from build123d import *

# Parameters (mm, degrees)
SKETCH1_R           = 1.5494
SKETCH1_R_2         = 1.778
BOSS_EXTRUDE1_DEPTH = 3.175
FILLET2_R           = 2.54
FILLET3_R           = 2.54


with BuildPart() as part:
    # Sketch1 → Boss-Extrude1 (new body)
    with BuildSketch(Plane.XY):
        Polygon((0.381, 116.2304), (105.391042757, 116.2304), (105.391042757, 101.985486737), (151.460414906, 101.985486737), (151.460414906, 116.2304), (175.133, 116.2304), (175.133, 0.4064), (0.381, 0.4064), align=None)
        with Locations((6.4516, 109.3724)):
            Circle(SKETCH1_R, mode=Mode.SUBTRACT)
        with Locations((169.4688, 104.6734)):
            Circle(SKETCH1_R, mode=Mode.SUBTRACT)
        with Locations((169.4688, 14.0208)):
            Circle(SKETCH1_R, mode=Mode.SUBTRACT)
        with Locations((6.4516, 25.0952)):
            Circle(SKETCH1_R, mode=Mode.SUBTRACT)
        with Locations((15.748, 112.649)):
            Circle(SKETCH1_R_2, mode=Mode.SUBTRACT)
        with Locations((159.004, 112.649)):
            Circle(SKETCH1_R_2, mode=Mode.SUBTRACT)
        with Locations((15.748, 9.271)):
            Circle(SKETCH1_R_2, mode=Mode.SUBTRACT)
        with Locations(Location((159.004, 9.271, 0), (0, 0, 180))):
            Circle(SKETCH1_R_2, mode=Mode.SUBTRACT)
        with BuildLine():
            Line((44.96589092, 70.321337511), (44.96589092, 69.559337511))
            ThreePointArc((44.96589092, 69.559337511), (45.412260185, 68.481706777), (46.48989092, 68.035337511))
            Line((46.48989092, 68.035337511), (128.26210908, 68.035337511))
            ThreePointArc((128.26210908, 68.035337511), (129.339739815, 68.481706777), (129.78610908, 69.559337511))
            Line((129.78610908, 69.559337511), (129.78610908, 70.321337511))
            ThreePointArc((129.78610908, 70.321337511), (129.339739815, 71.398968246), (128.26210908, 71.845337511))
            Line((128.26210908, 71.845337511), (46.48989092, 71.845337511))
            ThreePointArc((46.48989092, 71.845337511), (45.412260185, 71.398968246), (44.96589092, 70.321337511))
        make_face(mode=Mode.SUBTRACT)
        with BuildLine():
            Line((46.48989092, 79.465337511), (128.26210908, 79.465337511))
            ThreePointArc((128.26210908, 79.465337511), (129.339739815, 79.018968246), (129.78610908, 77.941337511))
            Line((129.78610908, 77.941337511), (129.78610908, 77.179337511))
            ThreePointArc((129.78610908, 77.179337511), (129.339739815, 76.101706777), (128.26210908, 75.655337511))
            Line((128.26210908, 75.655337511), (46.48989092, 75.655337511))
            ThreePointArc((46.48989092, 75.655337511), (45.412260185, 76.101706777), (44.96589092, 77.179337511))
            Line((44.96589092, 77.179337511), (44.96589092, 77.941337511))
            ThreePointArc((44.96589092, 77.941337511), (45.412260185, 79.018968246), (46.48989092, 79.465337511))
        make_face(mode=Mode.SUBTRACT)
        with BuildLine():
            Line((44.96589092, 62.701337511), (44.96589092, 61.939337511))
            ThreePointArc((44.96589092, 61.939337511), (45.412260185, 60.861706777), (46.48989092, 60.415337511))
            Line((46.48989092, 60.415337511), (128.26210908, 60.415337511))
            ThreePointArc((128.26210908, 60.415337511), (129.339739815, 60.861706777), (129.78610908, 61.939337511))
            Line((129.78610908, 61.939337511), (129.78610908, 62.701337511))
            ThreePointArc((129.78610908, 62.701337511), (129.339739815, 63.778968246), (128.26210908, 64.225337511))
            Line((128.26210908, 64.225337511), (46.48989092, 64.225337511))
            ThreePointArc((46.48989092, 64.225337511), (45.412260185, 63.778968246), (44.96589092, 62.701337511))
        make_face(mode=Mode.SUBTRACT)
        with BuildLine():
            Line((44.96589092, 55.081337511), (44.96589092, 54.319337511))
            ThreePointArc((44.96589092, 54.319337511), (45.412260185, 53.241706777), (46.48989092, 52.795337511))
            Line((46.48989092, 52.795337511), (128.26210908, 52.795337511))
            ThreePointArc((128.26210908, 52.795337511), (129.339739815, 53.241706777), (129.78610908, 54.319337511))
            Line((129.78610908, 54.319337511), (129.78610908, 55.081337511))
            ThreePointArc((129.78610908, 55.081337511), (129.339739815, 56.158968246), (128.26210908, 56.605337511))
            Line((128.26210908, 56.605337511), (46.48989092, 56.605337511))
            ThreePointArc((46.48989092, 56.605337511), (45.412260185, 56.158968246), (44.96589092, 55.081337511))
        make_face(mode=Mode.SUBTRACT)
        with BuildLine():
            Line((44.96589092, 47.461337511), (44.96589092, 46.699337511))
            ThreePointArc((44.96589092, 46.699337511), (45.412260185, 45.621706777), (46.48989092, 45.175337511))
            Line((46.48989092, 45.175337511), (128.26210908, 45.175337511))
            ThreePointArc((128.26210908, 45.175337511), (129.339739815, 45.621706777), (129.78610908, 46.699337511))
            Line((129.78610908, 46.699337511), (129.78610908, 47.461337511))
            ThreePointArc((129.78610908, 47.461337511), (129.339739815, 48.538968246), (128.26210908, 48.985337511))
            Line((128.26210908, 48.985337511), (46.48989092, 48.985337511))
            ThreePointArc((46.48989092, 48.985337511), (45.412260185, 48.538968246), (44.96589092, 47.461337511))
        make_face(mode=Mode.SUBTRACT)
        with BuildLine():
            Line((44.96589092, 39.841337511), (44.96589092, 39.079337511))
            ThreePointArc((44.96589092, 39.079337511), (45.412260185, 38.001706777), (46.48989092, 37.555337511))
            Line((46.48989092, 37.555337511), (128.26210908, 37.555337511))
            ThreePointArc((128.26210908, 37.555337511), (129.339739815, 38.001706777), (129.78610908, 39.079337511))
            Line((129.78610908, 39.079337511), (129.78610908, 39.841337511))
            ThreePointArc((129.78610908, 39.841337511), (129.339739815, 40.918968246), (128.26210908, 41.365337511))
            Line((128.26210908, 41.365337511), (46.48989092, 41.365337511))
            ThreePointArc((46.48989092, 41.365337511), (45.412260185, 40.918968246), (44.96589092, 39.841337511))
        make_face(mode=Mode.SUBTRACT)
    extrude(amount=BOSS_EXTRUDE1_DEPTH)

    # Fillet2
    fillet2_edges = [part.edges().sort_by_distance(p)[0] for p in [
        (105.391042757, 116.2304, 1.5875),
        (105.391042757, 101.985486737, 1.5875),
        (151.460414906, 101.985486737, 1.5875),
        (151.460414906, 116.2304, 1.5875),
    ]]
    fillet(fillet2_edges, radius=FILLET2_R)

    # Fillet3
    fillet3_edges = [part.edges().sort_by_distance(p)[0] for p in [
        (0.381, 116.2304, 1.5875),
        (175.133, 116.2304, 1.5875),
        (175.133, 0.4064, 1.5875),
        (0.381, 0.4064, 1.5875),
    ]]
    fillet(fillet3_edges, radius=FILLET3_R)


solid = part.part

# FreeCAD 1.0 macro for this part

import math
import FreeCAD as App
import Part
import Sketcher
from FreeCAD import Vector
Q = App.Units.Quantity


def edges_at(feature, points):
    """Names of the edges that pass closest to the given points."""
    edges = feature.Shape.Edges
    near = lambda p: min(range(len(edges)), key=lambda i: edges[i].distToShape(Part.Vertex(*p))[0])
    return sorted({f"Edge{near(p) + 1}" for p in points})

doc = App.newDocument("Part")
body = doc.addObject("PartDesign::Body", "Body")

sketch1 = body.newObject("Sketcher::SketchObject", "Sketch")
sketch1.AttachmentSupport = (doc.getObject("XY_Plane"), [""])
sketch1.MapMode = "FlatFace"
sketch1.addGeometry([
    Part.LineSegment(Vector(105.391043, 116.2304, 0), Vector(0.381, 116.2304, 0)),
    Part.LineSegment(Vector(0.381, 116.2304, 0), Vector(0.381, 0.4064, 0)),
    Part.LineSegment(Vector(0.381, 0.4064, 0), Vector(175.133, 0.4064, 0)),
    Part.LineSegment(Vector(175.133, 0.4064, 0), Vector(175.133, 116.2304, 0)),
    Part.LineSegment(Vector(175.133, 116.2304, 0), Vector(151.460415, 116.2304, 0)),
    Part.LineSegment(Vector(151.460415, 116.2304, 0), Vector(151.460415, 101.985487, 0)),
    Part.LineSegment(Vector(151.460415, 101.985487, 0), Vector(105.391043, 101.985487, 0)),
    Part.LineSegment(Vector(105.391043, 101.985487, 0), Vector(105.391043, 116.2304, 0)),
    Part.Circle(Vector(169.4688, 14.0208, 0), Vector(0, 0, 1), 1.5494),
    Part.Circle(Vector(159.004, 9.271, 0), Vector(0, 0, 1), 1.778),
    Part.Circle(Vector(15.748, 9.271, 0), Vector(0, 0, 1), 1.778),
    Part.Circle(Vector(6.4516, 25.0952, 0), Vector(0, 0, 1), 1.5494),
    Part.ArcOfCircle(Part.Circle(Vector(46.489891, 39.841338, 0), Vector(0, 0, 1), 1.524), math.radians(90), math.radians(180)),
    Part.LineSegment(Vector(46.489891, 41.365338, 0), Vector(128.262109, 41.365338, 0)),
    Part.ArcOfCircle(Part.Circle(Vector(128.262109, 39.841338, 0), Vector(0, 0, 1), 1.524), math.radians(0), math.radians(90)),
    Part.LineSegment(Vector(129.786109, 39.841338, 0), Vector(129.786109, 39.079338, 0)),
    Part.ArcOfCircle(Part.Circle(Vector(128.262109, 39.079338, 0), Vector(0, 0, 1), 1.524), math.radians(-90), math.radians(0)),
    Part.LineSegment(Vector(128.262109, 37.555338, 0), Vector(46.489891, 37.555338, 0)),
    Part.ArcOfCircle(Part.Circle(Vector(46.489891, 39.079338, 0), Vector(0, 0, 1), 1.524), math.radians(180), math.radians(270)),
    Part.LineSegment(Vector(44.965891, 39.079338, 0), Vector(44.965891, 39.841338, 0)),
    Part.ArcOfCircle(Part.Circle(Vector(46.489891, 47.461338, 0), Vector(0, 0, 1), 1.524), math.radians(90), math.radians(180)),
    Part.LineSegment(Vector(46.489891, 48.985338, 0), Vector(128.262109, 48.985338, 0)),
    Part.ArcOfCircle(Part.Circle(Vector(128.262109, 47.461338, 0), Vector(0, 0, 1), 1.524), math.radians(0), math.radians(90)),
    Part.LineSegment(Vector(129.786109, 47.461338, 0), Vector(129.786109, 46.699338, 0)),
    Part.ArcOfCircle(Part.Circle(Vector(128.262109, 46.699338, 0), Vector(0, 0, 1), 1.524), math.radians(-90), math.radians(0)),
    Part.LineSegment(Vector(128.262109, 45.175338, 0), Vector(46.489891, 45.175338, 0)),
    Part.ArcOfCircle(Part.Circle(Vector(46.489891, 46.699338, 0), Vector(0, 0, 1), 1.524), math.radians(180), math.radians(270)),
    Part.LineSegment(Vector(44.965891, 46.699338, 0), Vector(44.965891, 47.461338, 0)),
    Part.ArcOfCircle(Part.Circle(Vector(46.489891, 55.081338, 0), Vector(0, 0, 1), 1.524), math.radians(90), math.radians(180)),
    Part.LineSegment(Vector(46.489891, 56.605338, 0), Vector(128.262109, 56.605338, 0)),
    Part.ArcOfCircle(Part.Circle(Vector(128.262109, 55.081338, 0), Vector(0, 0, 1), 1.524), math.radians(0), math.radians(90)),
    Part.LineSegment(Vector(129.786109, 55.081338, 0), Vector(129.786109, 54.319338, 0)),
    Part.ArcOfCircle(Part.Circle(Vector(128.262109, 54.319338, 0), Vector(0, 0, 1), 1.524), math.radians(-90), math.radians(0)),
    Part.LineSegment(Vector(128.262109, 52.795338, 0), Vector(46.489891, 52.795338, 0)),
    Part.ArcOfCircle(Part.Circle(Vector(46.489891, 54.319338, 0), Vector(0, 0, 1), 1.524), math.radians(180), math.radians(270)),
    Part.LineSegment(Vector(44.965891, 54.319338, 0), Vector(44.965891, 55.081338, 0)),
    Part.Circle(Vector(169.4688, 104.6734, 0), Vector(0, 0, 1), 1.5494),
    Part.Circle(Vector(159.004, 112.649, 0), Vector(0, 0, 1), 1.778),
    Part.ArcOfCircle(Part.Circle(Vector(46.489891, 62.701338, 0), Vector(0, 0, 1), 1.524), math.radians(90), math.radians(180)),
    Part.LineSegment(Vector(46.489891, 64.225338, 0), Vector(128.262109, 64.225338, 0)),
    Part.ArcOfCircle(Part.Circle(Vector(128.262109, 62.701338, 0), Vector(0, 0, 1), 1.524), math.radians(0), math.radians(90)),
    Part.LineSegment(Vector(129.786109, 62.701338, 0), Vector(129.786109, 61.939338, 0)),
    Part.ArcOfCircle(Part.Circle(Vector(128.262109, 61.939338, 0), Vector(0, 0, 1), 1.524), math.radians(-90), math.radians(0)),
    Part.LineSegment(Vector(128.262109, 60.415338, 0), Vector(46.489891, 60.415338, 0)),
    Part.ArcOfCircle(Part.Circle(Vector(46.489891, 61.939338, 0), Vector(0, 0, 1), 1.524), math.radians(180), math.radians(270)),
    Part.LineSegment(Vector(44.965891, 61.939338, 0), Vector(44.965891, 62.701338, 0)),
    Part.ArcOfCircle(Part.Circle(Vector(46.489891, 70.321338, 0), Vector(0, 0, 1), 1.524), math.radians(90), math.radians(180)),
    Part.LineSegment(Vector(46.489891, 71.845338, 0), Vector(128.262109, 71.845338, 0)),
    Part.ArcOfCircle(Part.Circle(Vector(128.262109, 70.321338, 0), Vector(0, 0, 1), 1.524), math.radians(0), math.radians(90)),
    Part.LineSegment(Vector(129.786109, 70.321338, 0), Vector(129.786109, 69.559338, 0)),
    Part.ArcOfCircle(Part.Circle(Vector(128.262109, 69.559338, 0), Vector(0, 0, 1), 1.524), math.radians(-90), math.radians(0)),
    Part.LineSegment(Vector(128.262109, 68.035338, 0), Vector(46.489891, 68.035338, 0)),
    Part.ArcOfCircle(Part.Circle(Vector(46.489891, 69.559338, 0), Vector(0, 0, 1), 1.524), math.radians(180), math.radians(270)),
    Part.LineSegment(Vector(44.965891, 69.559338, 0), Vector(44.965891, 70.321338, 0)),
    Part.LineSegment(Vector(46.489891, 79.465338, 0), Vector(128.262109, 79.465338, 0)),
    Part.ArcOfCircle(Part.Circle(Vector(128.262109, 77.941338, 0), Vector(0, 0, 1), 1.524), math.radians(0), math.radians(90)),
    Part.LineSegment(Vector(129.786109, 77.941338, 0), Vector(129.786109, 77.179338, 0)),
    Part.ArcOfCircle(Part.Circle(Vector(128.262109, 77.179338, 0), Vector(0, 0, 1), 1.524), math.radians(-90), math.radians(0)),
    Part.LineSegment(Vector(128.262109, 75.655338, 0), Vector(46.489891, 75.655338, 0)),
    Part.ArcOfCircle(Part.Circle(Vector(46.489891, 77.179338, 0), Vector(0, 0, 1), 1.524), math.radians(180), math.radians(270)),
    Part.LineSegment(Vector(44.965891, 77.179338, 0), Vector(44.965891, 77.941338, 0)),
    Part.ArcOfCircle(Part.Circle(Vector(46.489891, 77.941338, 0), Vector(0, 0, 1), 1.524), math.radians(90), math.radians(180)),
    Part.Circle(Vector(15.748, 112.649, 0), Vector(0, 0, 1), 1.778),
    Part.Circle(Vector(6.4516, 109.3724, 0), Vector(0, 0, 1), 1.5494),
], False)
sketch1.addConstraint([
    Sketcher.Constraint("Coincident", 0, 2, 1, 1),
    Sketcher.Constraint("Coincident", 1, 2, 2, 1),
    Sketcher.Constraint("Coincident", 2, 2, 3, 1),
    Sketcher.Constraint("Coincident", 3, 2, 4, 1),
    Sketcher.Constraint("Coincident", 4, 2, 5, 1),
    Sketcher.Constraint("Coincident", 5, 2, 6, 1),
    Sketcher.Constraint("Coincident", 6, 2, 7, 1),
    Sketcher.Constraint("Coincident", 7, 2, 0, 1),
    Sketcher.Constraint("Tangent", 12, 1, 13, 1),
    Sketcher.Constraint("Tangent", 13, 2, 14, 2),
    Sketcher.Constraint("Tangent", 14, 1, 15, 1),
    Sketcher.Constraint("Tangent", 15, 2, 16, 2),
    Sketcher.Constraint("Tangent", 16, 1, 17, 1),
    Sketcher.Constraint("Tangent", 17, 2, 18, 2),
    Sketcher.Constraint("Tangent", 18, 1, 19, 1),
    Sketcher.Constraint("Tangent", 19, 2, 12, 2),
    Sketcher.Constraint("Tangent", 20, 1, 21, 1),
    Sketcher.Constraint("Tangent", 21, 2, 22, 2),
    Sketcher.Constraint("Tangent", 22, 1, 23, 1),
    Sketcher.Constraint("Tangent", 23, 2, 24, 2),
    Sketcher.Constraint("Tangent", 24, 1, 25, 1),
    Sketcher.Constraint("Tangent", 25, 2, 26, 2),
    Sketcher.Constraint("Tangent", 26, 1, 27, 1),
    Sketcher.Constraint("Tangent", 27, 2, 20, 2),
    Sketcher.Constraint("Tangent", 28, 1, 29, 1),
    Sketcher.Constraint("Tangent", 29, 2, 30, 2),
    Sketcher.Constraint("Tangent", 30, 1, 31, 1),
    Sketcher.Constraint("Tangent", 31, 2, 32, 2),
    Sketcher.Constraint("Tangent", 32, 1, 33, 1),
    Sketcher.Constraint("Tangent", 33, 2, 34, 2),
    Sketcher.Constraint("Tangent", 34, 1, 35, 1),
    Sketcher.Constraint("Tangent", 35, 2, 28, 2),
    Sketcher.Constraint("Tangent", 38, 1, 39, 1),
    Sketcher.Constraint("Tangent", 39, 2, 40, 2),
    Sketcher.Constraint("Tangent", 40, 1, 41, 1),
    Sketcher.Constraint("Tangent", 41, 2, 42, 2),
    Sketcher.Constraint("Tangent", 42, 1, 43, 1),
    Sketcher.Constraint("Tangent", 43, 2, 44, 2),
    Sketcher.Constraint("Tangent", 44, 1, 45, 1),
    Sketcher.Constraint("Tangent", 45, 2, 38, 2),
    Sketcher.Constraint("Tangent", 46, 1, 47, 1),
    Sketcher.Constraint("Tangent", 47, 2, 48, 2),
    Sketcher.Constraint("Tangent", 48, 1, 49, 1),
    Sketcher.Constraint("Tangent", 49, 2, 50, 2),
    Sketcher.Constraint("Tangent", 50, 1, 51, 1),
    Sketcher.Constraint("Tangent", 51, 2, 52, 2),
    Sketcher.Constraint("Tangent", 52, 1, 53, 1),
    Sketcher.Constraint("Tangent", 53, 2, 46, 2),
    Sketcher.Constraint("Tangent", 54, 2, 55, 2),
    Sketcher.Constraint("Tangent", 55, 1, 56, 1),
    Sketcher.Constraint("Tangent", 56, 2, 57, 2),
    Sketcher.Constraint("Tangent", 57, 1, 58, 1),
    Sketcher.Constraint("Tangent", 58, 2, 59, 2),
    Sketcher.Constraint("Tangent", 59, 1, 60, 1),
    Sketcher.Constraint("Tangent", 60, 2, 61, 2),
    Sketcher.Constraint("Tangent", 61, 1, 54, 1),
    Sketcher.Constraint("Horizontal", 0),
    Sketcher.Constraint("Vertical", 1),
    Sketcher.Constraint("Horizontal", 2),
    Sketcher.Constraint("Vertical", 3),
    Sketcher.Constraint("Horizontal", 4),
    Sketcher.Constraint("Vertical", 5),
    Sketcher.Constraint("Horizontal", 6),
    Sketcher.Constraint("Vertical", 7),
    Sketcher.Constraint("Horizontal", 13),
    Sketcher.Constraint("Vertical", 15),
    Sketcher.Constraint("Horizontal", 17),
    Sketcher.Constraint("Vertical", 19),
    Sketcher.Constraint("Horizontal", 21),
    Sketcher.Constraint("Vertical", 23),
    Sketcher.Constraint("Horizontal", 25),
    Sketcher.Constraint("Vertical", 27),
    Sketcher.Constraint("Horizontal", 29),
    Sketcher.Constraint("Vertical", 31),
    Sketcher.Constraint("Horizontal", 33),
    Sketcher.Constraint("Vertical", 35),
    Sketcher.Constraint("Horizontal", 39),
    Sketcher.Constraint("Vertical", 41),
    Sketcher.Constraint("Horizontal", 43),
    Sketcher.Constraint("Vertical", 45),
    Sketcher.Constraint("Horizontal", 47),
    Sketcher.Constraint("Vertical", 49),
    Sketcher.Constraint("Horizontal", 51),
    Sketcher.Constraint("Vertical", 53),
    Sketcher.Constraint("Horizontal", 54),
    Sketcher.Constraint("Vertical", 56),
    Sketcher.Constraint("Horizontal", 58),
    Sketcher.Constraint("Vertical", 60),
    Sketcher.Constraint("Equal", 9, 10),
    Sketcher.Constraint("Equal", 8, 11),
    Sketcher.Constraint("Equal", 12, 14),
    Sketcher.Constraint("Equal", 14, 16),
    Sketcher.Constraint("Equal", 16, 18),
    Sketcher.Constraint("Equal", 18, 20),
    Sketcher.Constraint("Equal", 20, 22),
    Sketcher.Constraint("Equal", 22, 24),
    Sketcher.Constraint("Equal", 24, 26),
    Sketcher.Constraint("Equal", 26, 28),
    Sketcher.Constraint("Equal", 28, 30),
    Sketcher.Constraint("Equal", 30, 32),
    Sketcher.Constraint("Equal", 32, 34),
    Sketcher.Constraint("Equal", 11, 36),
    Sketcher.Constraint("Equal", 10, 37),
    Sketcher.Constraint("Equal", 34, 38),
    Sketcher.Constraint("Equal", 38, 40),
    Sketcher.Constraint("Equal", 40, 42),
    Sketcher.Constraint("Equal", 42, 44),
    Sketcher.Constraint("Equal", 44, 46),
    Sketcher.Constraint("Equal", 46, 48),
    Sketcher.Constraint("Equal", 48, 50),
    Sketcher.Constraint("Equal", 50, 52),
    Sketcher.Constraint("Equal", 52, 55),
    Sketcher.Constraint("Equal", 55, 57),
    Sketcher.Constraint("Equal", 57, 59),
    Sketcher.Constraint("Equal", 59, 61),
    Sketcher.Constraint("Equal", 37, 62),
    Sketcher.Constraint("Equal", 36, 63),
    Sketcher.Constraint("Horizontal", 9, 3, 10, 3),
    Sketcher.Constraint("Horizontal", 37, 3, 62, 3),
    Sketcher.Constraint("Horizontal", 0, 2, 3, 2),
    Sketcher.Constraint("Vertical", 18, 3, 20, 3),
    Sketcher.Constraint("Vertical", 16, 3, 22, 3),
    Sketcher.Constraint("Vertical", 26, 3, 28, 3),
    Sketcher.Constraint("Vertical", 24, 3, 30, 3),
    Sketcher.Constraint("Vertical", 8, 3, 36, 3),
    Sketcher.Constraint("Vertical", 9, 3, 37, 3),
    Sketcher.Constraint("Vertical", 34, 3, 38, 3),
    Sketcher.Constraint("Vertical", 32, 3, 40, 3),
    Sketcher.Constraint("Vertical", 44, 3, 46, 3),
    Sketcher.Constraint("Vertical", 42, 3, 48, 3),
    Sketcher.Constraint("Vertical", 50, 3, 55, 3),
    Sketcher.Constraint("Vertical", 52, 3, 59, 3),
    Sketcher.Constraint("Vertical", 10, 3, 62, 3),
    Sketcher.Constraint("Vertical", 11, 3, 63, 3),
    Sketcher.Constraint("Equal", 19, 23),
    Sketcher.Constraint("Equal", 27, 31),
    Sketcher.Constraint("Equal", 35, 41),
    Sketcher.Constraint("Equal", 45, 49),
    Sketcher.Constraint("Equal", 53, 56),
    Sketcher.Constraint("Diameter", 9, Q("0.14 in")),
    Sketcher.Constraint("Radius", 12, Q("0.06 in")),
    Sketcher.Constraint("Diameter", 8, Q("0.122 in")),
    Sketcher.Constraint("DistanceX", 2, 1, 2, 2, Q("6.88 in")),
    Sketcher.Constraint("DistanceY", 1, 2, 1, 1, Q("4.56 in")),
    Sketcher.Constraint("DistanceY", 15, 2, 15, 1, Q("0.03 in")),
    Sketcher.Constraint("DistanceX", -1, 1, 9, 3, Q("6.26 in")),
    Sketcher.Constraint("DistanceX", -1, 1, 10, 3, Q("0.62 in")),
    Sketcher.Constraint("DistanceX", -1, 1, 8, 3, Q("6.672 in")),
    Sketcher.Constraint("DistanceY", -1, 1, 8, 3, Q("0.552 in")),
    Sketcher.Constraint("DistanceY", -1, 1, 9, 3, Q("0.365 in")),
    Sketcher.Constraint("DistanceX", -1, 1, 11, 3, Q("0.254 in")),
    Sketcher.Constraint("DistanceY", -1, 1, 11, 3, Q("0.988 in")),
    Sketcher.Constraint("DistanceY", -1, 1, 36, 3, Q("4.121 in")),
    Sketcher.Constraint("DistanceY", -1, 1, 37, 3, Q("4.435 in")),
    Sketcher.Constraint("DistanceY", -1, 1, 63, 3, Q("4.306 in")),
    Sketcher.Constraint("DistanceX", -1, 1, 0, 2, Q("0.015 in")),
    Sketcher.Constraint("DistanceY", -1, 1, 0, 2, Q("4.576 in")),
    Sketcher.Constraint("DistanceX", 13, 1, 13, 2, 81.772218),
    Sketcher.Constraint("DistanceX", 0, 2, 0, 1, 105.010043),
    Sketcher.Constraint("DistanceX", 4, 2, 4, 1, 23.672585),
    Sketcher.Constraint("DistanceY", 5, 2, 5, 1, 14.244913),
    Sketcher.Constraint("DistanceX", -1, 1, 12, 3, 46.489891),
    Sketcher.Constraint("DistanceY", -1, 1, 12, 3, 39.841338),
    Sketcher.Constraint("DistanceY", -1, 1, 20, 3, 47.461338),
    Sketcher.Constraint("DistanceY", -1, 1, 28, 3, 55.081338),
    Sketcher.Constraint("DistanceY", -1, 1, 38, 3, 62.701338),
    Sketcher.Constraint("DistanceY", -1, 1, 46, 3, 70.321338),
    Sketcher.Constraint("DistanceY", -1, 1, 55, 3, 77.941338),
])
pad1 = body.newObject("PartDesign::Pad", "Pad")
pad1.Profile = sketch1
pad1.Length = Q("0.125 in")
doc.recompute()

fillet = body.newObject("PartDesign::Fillet", "Fillet")
fillet.Base = (pad1, edges_at(pad1, [
    (105.391, 116.23, 1.587),
    (105.391, 101.985, 1.587),
    (151.46, 101.985, 1.587),
    (151.46, 116.23, 1.587),
]))
fillet.Radius = Q("0.1 in")
doc.recompute()

fillet2 = body.newObject("PartDesign::Fillet", "Fillet001")
fillet2.Base = (fillet, edges_at(fillet, [
    (0.381, 116.23, 1.587),
    (175.133, 116.23, 1.587),
    (175.133, 0.406, 1.587),
    (0.381, 0.406, 1.587),
]))
fillet2.Radius = Q("0.1 in")

doc.recompute()
